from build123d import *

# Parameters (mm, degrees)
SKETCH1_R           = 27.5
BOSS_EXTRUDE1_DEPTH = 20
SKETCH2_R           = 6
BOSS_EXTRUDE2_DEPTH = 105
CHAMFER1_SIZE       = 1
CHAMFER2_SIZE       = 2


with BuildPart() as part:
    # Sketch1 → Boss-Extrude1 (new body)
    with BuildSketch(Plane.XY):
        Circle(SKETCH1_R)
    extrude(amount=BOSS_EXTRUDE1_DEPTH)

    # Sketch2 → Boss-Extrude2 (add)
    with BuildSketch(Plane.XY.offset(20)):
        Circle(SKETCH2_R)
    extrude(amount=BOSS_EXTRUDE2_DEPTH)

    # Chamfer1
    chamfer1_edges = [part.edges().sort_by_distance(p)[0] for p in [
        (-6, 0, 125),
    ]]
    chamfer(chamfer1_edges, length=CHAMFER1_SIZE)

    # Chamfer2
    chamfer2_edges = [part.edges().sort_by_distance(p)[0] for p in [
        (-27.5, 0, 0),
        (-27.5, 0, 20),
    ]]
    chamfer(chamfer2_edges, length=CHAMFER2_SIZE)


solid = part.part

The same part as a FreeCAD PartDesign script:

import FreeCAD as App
import Part
import Sketcher

V = App.Vector


def edges_at(feature, points):
    """Names of the edges that pass closest to the given points."""
    edges = feature.Shape.Edges
    near = lambda p: min(range(len(edges)), key=lambda i: edges[i].distToShape(Part.Vertex(*p))[0])
    return sorted({f"Edge{near(p) + 1}" for p in points})

doc = App.newDocument("Part")
params = doc.addObject("Spreadsheet::Sheet", "Params")
for row, (alias, value) in enumerate([
    ("sketch1_diameter", "55 mm"),
    ("pad1_length", "20 mm"),
    ("sketch2_diameter", "12 mm"),
    ("pad2_length", "105 mm"),
    ("chamfer_size", "1 mm"),
    ("chamfer2_size", "2 mm"),
], start=1):
    params.set(f"A{row}", alias)
    params.set(f"B{row}", "=" + value)
    params.setAlias(f"B{row}", alias)

body = doc.addObject("PartDesign::Body", "Body")

# Sketch on XY plane
sketch1 = body.newObject("Sketcher::SketchObject", "Sketch")
sketch1.AttachmentSupport = (doc.getObject("XY_Plane"), [""])
sketch1.MapMode = "FlatFace"
sketch1.addGeometry(Part.Circle(V(0, 0, 0), V(0, 0, 1), 27.5), False)
sketch1.addConstraint([
    Sketcher.Constraint("Coincident", 0, 3, -1, 1),
    Sketcher.Constraint("Diameter", 0, 55.0),
])
sketch1.setExpression("Constraints[1]", "Params.sketch1_diameter")
pad1 = body.newObject("PartDesign::Pad", "Pad")
pad1.Profile = sketch1
pad1.setExpression("Length", "Params.pad1_length")

# Sketch on XY plane
sketch2 = body.newObject("Sketcher::SketchObject", "Sketch001")
sketch2.AttachmentSupport = (doc.getObject("XY_Plane"), [""])
sketch2.MapMode = "FlatFace"
sketch2.AttachmentOffset = App.Placement(V(0, 0, 20), App.Rotation())
sketch2.addGeometry(Part.Circle(V(0, 0, 0), V(0, 0, 1), 6), False)
sketch2.addConstraint([
    Sketcher.Constraint("Coincident", 0, 3, -1, 1),
    Sketcher.Constraint("Diameter", 0, 12.0),
])
sketch2.setExpression("Constraints[1]", "Params.sketch2_diameter")
pad2 = body.newObject("PartDesign::Pad", "Pad001")
pad2.Profile = sketch2
pad2.setExpression("Length", "Params.pad2_length")
doc.recompute()

chamfer = body.newObject("PartDesign::Chamfer", "Chamfer")
chamfer.Base = (pad2, edges_at(pad2, [(-6, 0, 125)]))
chamfer.setExpression("Size", "Params.chamfer_size")
doc.recompute()

chamfer2 = body.newObject("PartDesign::Chamfer", "Chamfer001")
chamfer2.Base = (chamfer, edges_at(chamfer, [(-27.5, 0, 0), (-27.5, 0, 20)]))
chamfer2.setExpression("Size", "Params.chamfer2_size")

doc.recompute()
